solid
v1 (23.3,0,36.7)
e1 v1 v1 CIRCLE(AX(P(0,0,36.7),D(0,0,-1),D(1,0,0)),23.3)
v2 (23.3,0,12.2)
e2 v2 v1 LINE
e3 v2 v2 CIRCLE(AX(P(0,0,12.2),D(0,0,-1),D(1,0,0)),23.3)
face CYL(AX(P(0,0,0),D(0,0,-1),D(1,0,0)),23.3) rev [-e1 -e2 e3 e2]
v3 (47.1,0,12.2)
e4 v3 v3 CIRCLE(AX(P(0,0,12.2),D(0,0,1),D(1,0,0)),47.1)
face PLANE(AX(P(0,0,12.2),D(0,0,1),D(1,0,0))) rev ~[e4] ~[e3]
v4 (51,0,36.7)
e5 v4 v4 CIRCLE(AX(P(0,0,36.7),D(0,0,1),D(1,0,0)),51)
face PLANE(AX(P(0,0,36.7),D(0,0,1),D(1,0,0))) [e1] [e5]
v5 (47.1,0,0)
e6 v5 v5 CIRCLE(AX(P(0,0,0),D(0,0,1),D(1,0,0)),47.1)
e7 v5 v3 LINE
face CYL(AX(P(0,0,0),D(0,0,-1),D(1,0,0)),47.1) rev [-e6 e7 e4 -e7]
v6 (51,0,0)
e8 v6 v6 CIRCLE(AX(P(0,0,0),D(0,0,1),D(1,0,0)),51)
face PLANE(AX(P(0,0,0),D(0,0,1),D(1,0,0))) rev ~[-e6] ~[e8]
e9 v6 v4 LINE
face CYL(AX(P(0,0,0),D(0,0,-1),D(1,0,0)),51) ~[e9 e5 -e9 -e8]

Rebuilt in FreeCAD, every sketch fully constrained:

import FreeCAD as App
import Part
import Sketcher
Q = App.Units.Quantity

doc = App.newDocument("Part")
body = doc.addObject("PartDesign::Body", "Body")

# Sketch on XY plane
sketch1 = body.newObject("Sketcher::SketchObject", "Sketch")
sketch1.AttachmentSupport = (doc.getObject("XY_Plane"), [""])
sketch1.MapMode = "FlatFace"
sketch1.addGeometry(Part.Circle(App.Vector(0, 0, 0), App.Vector(0, 0, 1), 51), False)
sketch1.addConstraint([
    Sketcher.Constraint("Coincident", 0, 3, -1, 1),
    Sketcher.Constraint("Diameter", 0, Q("102 mm")),
])
pad1 = body.newObject("PartDesign::Pad", "Pad")
pad1.Profile = sketch1
pad1.Length = 36.7

# Sketch on XY plane
sketch2 = body.newObject("Sketcher::SketchObject", "Sketch001")
sketch2.AttachmentSupport = (doc.getObject("XY_Plane"), [""])
sketch2.MapMode = "FlatFace"
sketch2.addGeometry(Part.Circle(App.Vector(0, 0, 0), App.Vector(0, 0, 1), 47), False)
sketch2.addConstraint([
    Sketcher.Constraint("Coincident", 0, 3, -1, 1),
    Sketcher.Constraint("Diameter", 0, Q("94.2 mm")),
])
pocket1 = body.newObject("PartDesign::Pocket", "Pocket")
pocket1.Profile = sketch2
pocket1.Length = 12.2
pocket1.Reversed = True

# Sketch on XY plane
sketch3 = body.newObject("Sketcher::SketchObject", "Sketch002")
sketch3.AttachmentSupport = (doc.getObject("XY_Plane"), [""])
sketch3.MapMode = "FlatFace"
sketch3.addGeometry(Part.Circle(App.Vector(0, 0, 0), App.Vector(0, 0, 1), 23), False)
sketch3.addConstraint([
    Sketcher.Constraint("Coincident", 0, 3, -1, 1),
    Sketcher.Constraint("Diameter", 0, Q("46.6 mm")),
])
pocket2 = body.newObject("PartDesign::Pocket", "Pocket001")
pocket2.Profile = sketch3
pocket2.Length = 85
pocket2.Reversed = True

doc.recompute()
